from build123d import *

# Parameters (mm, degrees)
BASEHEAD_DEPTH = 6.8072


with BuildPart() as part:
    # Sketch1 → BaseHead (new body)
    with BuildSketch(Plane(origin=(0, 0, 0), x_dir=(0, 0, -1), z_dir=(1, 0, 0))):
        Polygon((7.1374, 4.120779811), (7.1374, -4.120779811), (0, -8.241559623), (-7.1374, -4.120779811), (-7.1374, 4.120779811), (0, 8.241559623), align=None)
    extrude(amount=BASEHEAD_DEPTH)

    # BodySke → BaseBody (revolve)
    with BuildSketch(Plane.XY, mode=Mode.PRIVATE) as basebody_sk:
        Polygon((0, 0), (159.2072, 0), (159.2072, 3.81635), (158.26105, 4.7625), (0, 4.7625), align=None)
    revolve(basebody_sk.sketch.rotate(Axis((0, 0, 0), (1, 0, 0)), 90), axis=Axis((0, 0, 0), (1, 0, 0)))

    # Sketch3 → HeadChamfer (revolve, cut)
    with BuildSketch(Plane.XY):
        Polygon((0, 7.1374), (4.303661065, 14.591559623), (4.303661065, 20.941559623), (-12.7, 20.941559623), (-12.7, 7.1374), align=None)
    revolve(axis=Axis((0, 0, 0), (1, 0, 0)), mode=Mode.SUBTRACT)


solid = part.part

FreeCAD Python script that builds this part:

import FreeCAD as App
import Part
import Sketcher
from FreeCAD import Vector
Q = App.Units.Quantity


def add_polygon(sketch, points):
    """Adds a closed chain of lines whose ends are joined by coincident constraints."""
    first, n = sketch.GeometryCount, len(points)
    for a, b in zip(points, points[1:] + points[:1]):
        sketch.addGeometry(Part.LineSegment(App.Vector(*a, 0), App.Vector(*b, 0)), False)
    for i in range(n):
        sketch.addConstraint(Sketcher.Constraint("Coincident", first + i, 2, first + (i + 1) % n, 1))

doc = App.newDocument("Part")
body = doc.addObject("PartDesign::Body", "Body")

# Sketch on YZ plane
sketch1 = doc.addObject("Sketcher::SketchObject", "Sketch")
body.addObject(sketch1)
sketch1.AttachmentSupport = (doc.YZ_Plane, [""])
sketch1.MapMode = "FlatFace"
add_polygon(sketch1, [(-4, -7), (4, -7), (8, 0), (4, 7), (-4, 7), (-8, 0)])  # lines 0-5
sketch1.addConstraint(Sketcher.Constraint("Horizontal", 0))
sketch1.addConstraint(Sketcher.Constraint("Horizontal", 3))
sketch1.addConstraint(Sketcher.Constraint("Symmetric", 0, 2, 3, 2, -1, 1))
sketch1.addConstraint(Sketcher.Constraint("Symmetric", 1, 2, 4, 2, -1, 1))
sketch1.addConstraint(Sketcher.Constraint("PointOnObject", 1, 2, -1))
sketch1.addConstraint(Sketcher.Constraint("Parallel", 2, 5))
sketch1.addConstraint(Sketcher.Constraint("Vertical", 0, 2, 2, 2))
sketch1.addConstraint(Sketcher.Constraint("Angle", 1, Q("60 deg")))
sketch1.addConstraint(Sketcher.Constraint("DistanceY", 0, 2, -1, 1, Q("0.281 in")))
sketch1.addConstraint(Sketcher.Constraint("DistanceX", 0, 1, 0, 2, 8.24156))
pad1 = doc.addObject("PartDesign::Pad", "Pad")
body.addObject(pad1)
pad1.Profile = sketch1
pad1.Length = Q("0.268 in")

# Sketch on XY plane
sketch2 = doc.addObject("Sketcher::SketchObject", "Sketch001")
body.addObject(sketch2)
sketch2.AttachmentSupport = (doc.XY_Plane, [""])
sketch2.MapMode = "FlatFace"
add_polygon(sketch2, [(0, 0), (159.2, 0), (159.2, 3.8), (158.3, 4.8), (0, 4.8)])  # lines 0-4
sketch2.addConstraint(Sketcher.Constraint("Horizontal", 0))
sketch2.addConstraint(Sketcher.Constraint("Vertical", 1))
sketch2.addConstraint(Sketcher.Constraint("Horizontal", 3))
sketch2.addConstraint(Sketcher.Constraint("Vertical", 4))
sketch2.addConstraint(Sketcher.Constraint("Coincident", 4, 2, -1, 1))
sketch2.addConstraint(Sketcher.Constraint("Angle", 2, Q("135 deg")))
sketch2.addConstraint(Sketcher.Constraint("DistanceX", 0, 1, 0, 2, Q("6.268 in")))
sketch2.addConstraint(Sketcher.Constraint("DistanceY", 4, 2, 4, 1, Q("0.1875 in")))
sketch2.addConstraint(Sketcher.Constraint("DistanceX", 3, 2, 3, 1, 158.26105))
revolution = doc.addObject("PartDesign::Revolution", "Revolution")
body.addObject(revolution)
revolution.Profile = sketch2
revolution.ReferenceAxis = (sketch2, ["H_Axis"])
revolution.Angle = 360

# Sketch on XY plane
sketch3 = doc.addObject("Sketcher::SketchObject", "Sketch002")
body.addObject(sketch3)
sketch3.AttachmentSupport = (doc.XY_Plane, [""])
sketch3.MapMode = "FlatFace"
add_polygon(sketch3, [(0, 7), (4, 15), (4, 21), (-13, 21), (-13, 7)])  # lines 0-4
sketch3.addConstraint(Sketcher.Constraint("Vertical", 1))
sketch3.addConstraint(Sketcher.Constraint("Horizontal", 2))
sketch3.addConstraint(Sketcher.Constraint("Vertical", 3))
sketch3.addConstraint(Sketcher.Constraint("Horizontal", 4))
sketch3.addConstraint(Sketcher.Constraint("PointOnObject", 4, 2, -2))
sketch3.addConstraint(Sketcher.Constraint("DistanceX", 4, 1, 4, 2, Q("0.5 in")))
sketch3.addConstraint(Sketcher.Constraint("Angle", 0, Q("60 deg")))
sketch3.addConstraint(Sketcher.Constraint("DistanceY", 1, 1, 1, 2, Q("0.25 in")))
sketch3.addConstraint(Sketcher.Constraint("DistanceY", -1, 1, 3, 2, Q("0.281 in")))
sketch3.addConstraint(Sketcher.Constraint("DistanceX", 2, 2, 2, 1, 17.003661))
groove = doc.addObject("PartDesign::Groove", "Groove")
body.addObject(groove)
groove.Profile = sketch3
groove.ReferenceAxis = (sketch3, ["H_Axis"])
groove.Angle = 360

doc.recompute()
